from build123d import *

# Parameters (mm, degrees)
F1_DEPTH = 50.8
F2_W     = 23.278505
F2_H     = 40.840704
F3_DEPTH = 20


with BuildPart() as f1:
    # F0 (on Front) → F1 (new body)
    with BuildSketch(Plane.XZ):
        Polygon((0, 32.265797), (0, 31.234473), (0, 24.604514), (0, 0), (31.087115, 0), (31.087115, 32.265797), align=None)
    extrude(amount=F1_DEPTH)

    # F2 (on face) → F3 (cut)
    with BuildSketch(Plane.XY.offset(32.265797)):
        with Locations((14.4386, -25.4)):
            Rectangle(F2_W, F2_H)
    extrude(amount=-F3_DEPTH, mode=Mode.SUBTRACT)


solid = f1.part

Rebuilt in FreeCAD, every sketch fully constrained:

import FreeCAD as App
import Part
import Sketcher
Q = App.Units.Quantity

doc = App.newDocument("Part")
body = doc.addObject("PartDesign::Body", "Body")

# Sketch on XZ plane
sketch1 = body.newObject("Sketcher::SketchObject", "Sketch")
sketch1.AttachmentSupport = (doc.getObject("XZ_Plane"), [""])
sketch1.MapMode = "FlatFace"
sketch1.addGeometry(Part.LineSegment(App.Vector(0, 32, 0), App.Vector(0, 0, 0)), False)
sketch1.addGeometry(Part.LineSegment(App.Vector(0, 0, 0), App.Vector(31, 0, 0)), False)
sketch1.addGeometry(Part.LineSegment(App.Vector(31, 0, 0), App.Vector(31, 32, 0)), False)
sketch1.addGeometry(Part.LineSegment(App.Vector(31, 32, 0), App.Vector(0, 32, 0)), False)
sketch1.addConstraint(Sketcher.Constraint("Coincident", 0, 2, 1, 1))
sketch1.addConstraint(Sketcher.Constraint("Coincident", 1, 2, 2, 1))
sketch1.addConstraint(Sketcher.Constraint("Coincident", 2, 2, 3, 1))
sketch1.addConstraint(Sketcher.Constraint("Coincident", 3, 2, 0, 1))
sketch1.addConstraint(Sketcher.Constraint("Vertical", 0))
sketch1.addConstraint(Sketcher.Constraint("Horizontal", 1))
sketch1.addConstraint(Sketcher.Constraint("Vertical", 2))
sketch1.addConstraint(Sketcher.Constraint("Horizontal", 3))
sketch1.addConstraint(Sketcher.Constraint("Coincident", 0, 2, -1, 1))
sketch1.addConstraint(Sketcher.Constraint("DistanceX", 1, 1, 1, 2, Q("31.087115 mm")))
sketch1.addConstraint(Sketcher.Constraint("DistanceY", 0, 2, 0, 1, Q("32.265797 mm")))
pad1 = body.newObject("PartDesign::Pad", "Pad")
pad1.Profile = sketch1
pad1.Length = 50.8

# Sketch on XY plane
sketch2 = body.newObject("Sketcher::SketchObject", "Sketch001")
sketch2.AttachmentSupport = (doc.getObject("XY_Plane"), [""])
sketch2.MapMode = "FlatFace"
sketch2.AttachmentOffset = App.Placement(App.Vector(0, 0, 32.265797), App.Rotation())
sketch2.addGeometry(Part.LineSegment(App.Vector(3, -5, 0), App.Vector(3, -46, 0)), False)
sketch2.addGeometry(Part.LineSegment(App.Vector(3, -46, 0), App.Vector(26, -46, 0)), False)
sketch2.addGeometry(Part.LineSegment(App.Vector(26, -46, 0), App.Vector(26, -5, 0)), False)
sketch2.addGeometry(Part.LineSegment(App.Vector(26, -5, 0), App.Vector(3, -5, 0)), False)
sketch2.addConstraint(Sketcher.Constraint("Coincident", 0, 2, 1, 1))
sketch2.addConstraint(Sketcher.Constraint("Coincident", 1, 2, 2, 1))
sketch2.addConstraint(Sketcher.Constraint("Coincident", 2, 2, 3, 1))
sketch2.addConstraint(Sketcher.Constraint("Coincident", 3, 2, 0, 1))
sketch2.addConstraint(Sketcher.Constraint("Vertical", 0))
sketch2.addConstraint(Sketcher.Constraint("Horizontal", 1))
sketch2.addConstraint(Sketcher.Constraint("Vertical", 2))
sketch2.addConstraint(Sketcher.Constraint("Horizontal", 3))
sketch2.addConstraint(Sketcher.Constraint("DistanceX", 1, 1, 1, 2, Q("23.278505 mm")))
sketch2.addConstraint(Sketcher.Constraint("DistanceY", 0, 2, 0, 1, Q("40.840704 mm")))
sketch2.addConstraint(Sketcher.Constraint("DistanceX", -1, 1, 0, 2, Q("2.799348 mm")))
sketch2.addConstraint(Sketcher.Constraint("DistanceY", 0, 2, -1, 1, Q("45.820352 mm")))
pocket1 = body.newObject("PartDesign::Pocket", "Pocket")
pocket1.Profile = sketch2
pocket1.Length = 20

doc.recompute()
